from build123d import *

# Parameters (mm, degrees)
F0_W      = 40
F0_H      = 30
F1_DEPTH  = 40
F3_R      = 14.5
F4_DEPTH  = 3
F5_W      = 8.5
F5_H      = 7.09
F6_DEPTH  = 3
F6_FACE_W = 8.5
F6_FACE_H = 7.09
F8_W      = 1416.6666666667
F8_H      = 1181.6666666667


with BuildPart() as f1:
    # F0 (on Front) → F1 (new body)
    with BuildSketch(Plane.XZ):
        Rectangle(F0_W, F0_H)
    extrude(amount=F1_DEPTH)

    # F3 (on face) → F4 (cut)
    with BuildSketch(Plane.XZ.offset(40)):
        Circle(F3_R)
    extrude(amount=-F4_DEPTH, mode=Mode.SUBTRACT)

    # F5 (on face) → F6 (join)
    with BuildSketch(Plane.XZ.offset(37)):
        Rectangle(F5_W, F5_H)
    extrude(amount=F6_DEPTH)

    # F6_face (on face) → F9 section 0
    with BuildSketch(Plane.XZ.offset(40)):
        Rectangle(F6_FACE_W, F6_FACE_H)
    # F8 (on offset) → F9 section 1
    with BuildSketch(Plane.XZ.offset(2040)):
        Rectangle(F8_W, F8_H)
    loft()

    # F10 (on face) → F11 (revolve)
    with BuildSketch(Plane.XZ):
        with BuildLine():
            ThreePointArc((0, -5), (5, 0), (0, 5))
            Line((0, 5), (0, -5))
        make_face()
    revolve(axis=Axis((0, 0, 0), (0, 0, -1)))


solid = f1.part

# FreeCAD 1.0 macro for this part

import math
import FreeCAD as App
import Part
import Sketcher
from FreeCAD import Vector

doc = App.newDocument("Part")
params = doc.addObject("Spreadsheet::Sheet", "Params")
for row, (alias, value) in enumerate([
    ("sketch1_width", "40 mm"),
    ("sketch1_height", "30 mm"),
    ("pad1_length", "40 mm"),
    ("sketch2_diameter", "29 mm"),
    ("pocket1_length", "3 mm"),
    ("sketch3_width", "8.5 mm"),
    ("sketch3_height", "7.09 mm"),
    ("pad2_length", "3 mm"),
    ("sketch4_width", "8.5 mm"),
    ("sketch4_height", "7.09 mm"),
    ("sketch6_radius", "5 mm"),
    ("revolution_angle", "360 deg"),
], start=1):
    params.set(f"A{row}", alias)
    params.set(f"B{row}", "=" + value)
    params.setAlias(f"B{row}", alias)

body = doc.addObject("PartDesign::Body", "Body")

# Sketch on XZ plane
sketch1 = body.newObject("Sketcher::SketchObject", "Sketch")
sketch1.AttachmentSupport = (doc.getObject("XZ_Plane"), [""])
sketch1.MapMode = "FlatFace"
sketch1.addGeometry(Part.LineSegment(Vector(-20, 15, 0), Vector(-20, -15, 0)), False)
sketch1.addGeometry(Part.LineSegment(Vector(-20, -15, 0), Vector(20, -15, 0)), False)
sketch1.addGeometry(Part.LineSegment(Vector(20, -15, 0), Vector(20, 15, 0)), False)
sketch1.addGeometry(Part.LineSegment(Vector(20, 15, 0), Vector(-20, 15, 0)), False)
sketch1.addConstraint(Sketcher.Constraint("Coincident", 0, 2, 1, 1))
sketch1.addConstraint(Sketcher.Constraint("Coincident", 1, 2, 2, 1))
sketch1.addConstraint(Sketcher.Constraint("Coincident", 2, 2, 3, 1))
sketch1.addConstraint(Sketcher.Constraint("Coincident", 3, 2, 0, 1))
sketch1.addConstraint(Sketcher.Constraint("Vertical", 0))
sketch1.addConstraint(Sketcher.Constraint("Horizontal", 1))
sketch1.addConstraint(Sketcher.Constraint("Vertical", 2))
sketch1.addConstraint(Sketcher.Constraint("Horizontal", 3))
sketch1.addConstraint(Sketcher.Constraint("Symmetric", 0, 2, 2, 2, -1, 1))
sketch1.addConstraint(Sketcher.Constraint("DistanceX", 1, 1, 1, 2, 40.0))
sketch1.addConstraint(Sketcher.Constraint("DistanceY", 0, 2, 0, 1, 30.0))
sketch1.setExpression("Constraints[9]", "Params.sketch1_width")
sketch1.setExpression("Constraints[10]", "Params.sketch1_height")
pad1 = body.newObject("PartDesign::Pad", "Pad")
pad1.Profile = sketch1
pad1.setExpression("Length", "Params.pad1_length")

# Sketch on XZ plane
sketch2 = body.newObject("Sketcher::SketchObject", "Sketch001")
sketch2.AttachmentSupport = (doc.getObject("XZ_Plane"), [""])
sketch2.MapMode = "FlatFace"
sketch2.AttachmentOffset = App.Placement(Vector(0, 0, 40), App.Rotation())
sketch2.addGeometry(Part.Circle(Vector(0, 0, 0), Vector(0, 0, 1), 14), False)
sketch2.addConstraint(Sketcher.Constraint("Coincident", 0, 3, -1, 1))
sketch2.addConstraint(Sketcher.Constraint("Diameter", 0, 29.0))
sketch2.setExpression("Constraints[1]", "Params.sketch2_diameter")
pocket1 = body.newObject("PartDesign::Pocket", "Pocket")
pocket1.Profile = sketch2
pocket1.setExpression("Length", "Params.pocket1_length")

# Sketch on XZ plane
sketch3 = body.newObject("Sketcher::SketchObject", "Sketch002")
sketch3.AttachmentSupport = (doc.getObject("XZ_Plane"), [""])
sketch3.MapMode = "FlatFace"
sketch3.AttachmentOffset = App.Placement(Vector(0, 0, 37), App.Rotation())
sketch3.addGeometry(Part.LineSegment(Vector(-4, 4, 0), Vector(-4, -4, 0)), False)
sketch3.addGeometry(Part.LineSegment(Vector(-4, -4, 0), Vector(4, -4, 0)), False)
sketch3.addGeometry(Part.LineSegment(Vector(4, -4, 0), Vector(4, 4, 0)), False)
sketch3.addGeometry(Part.LineSegment(Vector(4, 4, 0), Vector(-4, 4, 0)), False)
sketch3.addConstraint(Sketcher.Constraint("Coincident", 0, 2, 1, 1))
sketch3.addConstraint(Sketcher.Constraint("Coincident", 1, 2, 2, 1))
sketch3.addConstraint(Sketcher.Constraint("Coincident", 2, 2, 3, 1))
sketch3.addConstraint(Sketcher.Constraint("Coincident", 3, 2, 0, 1))
sketch3.addConstraint(Sketcher.Constraint("Vertical", 0))
sketch3.addConstraint(Sketcher.Constraint("Horizontal", 1))
sketch3.addConstraint(Sketcher.Constraint("Vertical", 2))
sketch3.addConstraint(Sketcher.Constraint("Horizontal", 3))
sketch3.addConstraint(Sketcher.Constraint("Symmetric", 0, 2, 2, 2, -1, 1))
sketch3.addConstraint(Sketcher.Constraint("DistanceX", 1, 1, 1, 2, 8.5))
sketch3.addConstraint(Sketcher.Constraint("DistanceY", 0, 2, 0, 1, 7.09))
sketch3.setExpression("Constraints[9]", "Params.sketch3_width")
sketch3.setExpression("Constraints[10]", "Params.sketch3_height")
pad2 = body.newObject("PartDesign::Pad", "Pad001")
pad2.Profile = sketch3
pad2.setExpression("Length", "Params.pad2_length")

# Sketch on XZ plane
sketch4 = body.newObject("Sketcher::SketchObject", "Sketch003")
sketch4.AttachmentSupport = (doc.getObject("XZ_Plane"), [""])
sketch4.MapMode = "FlatFace"
sketch4.AttachmentOffset = App.Placement(Vector(0, 0, 40), App.Rotation())
sketch4.addGeometry(Part.LineSegment(Vector(-4, 4, 0), Vector(-4, -4, 0)), False)
sketch4.addGeometry(Part.LineSegment(Vector(-4, -4, 0), Vector(4, -4, 0)), False)
sketch4.addGeometry(Part.LineSegment(Vector(4, -4, 0), Vector(4, 4, 0)), False)
sketch4.addGeometry(Part.LineSegment(Vector(4, 4, 0), Vector(-4, 4, 0)), False)
sketch4.addConstraint(Sketcher.Constraint("Coincident", 0, 2, 1, 1))
sketch4.addConstraint(Sketcher.Constraint("Coincident", 1, 2, 2, 1))
sketch4.addConstraint(Sketcher.Constraint("Coincident", 2, 2, 3, 1))
sketch4.addConstraint(Sketcher.Constraint("Coincident", 3, 2, 0, 1))
sketch4.addConstraint(Sketcher.Constraint("Vertical", 0))
sketch4.addConstraint(Sketcher.Constraint("Horizontal", 1))
sketch4.addConstraint(Sketcher.Constraint("Vertical", 2))
sketch4.addConstraint(Sketcher.Constraint("Horizontal", 3))
sketch4.addConstraint(Sketcher.Constraint("Symmetric", 0, 2, 2, 2, -1, 1))
sketch4.addConstraint(Sketcher.Constraint("DistanceX", 1, 1, 1, 2, 8.5))
sketch4.addConstraint(Sketcher.Constraint("DistanceY", 0, 2, 0, 1, 7.09))
sketch4.setExpression("Constraints[9]", "Params.sketch4_width")
sketch4.setExpression("Constraints[10]", "Params.sketch4_height")

# Sketch on XZ plane
sketch5 = body.newObject("Sketcher::SketchObject", "Sketch004")
sketch5.AttachmentSupport = (doc.getObject("XZ_Plane"), [""])
sketch5.MapMode = "FlatFace"
sketch5.AttachmentOffset = App.Placement(Vector(0, 0, 2040), App.Rotation())
sketch5.addGeometry(Part.LineSegment(Vector(-708, 591, 0), Vector(-708, -591, 0)), False)
sketch5.addGeometry(Part.LineSegment(Vector(-708, -591, 0), Vector(708, -591, 0)), False)
sketch5.addGeometry(Part.LineSegment(Vector(708, -591, 0), Vector(708, 591, 0)), False)
sketch5.addGeometry(Part.LineSegment(Vector(708, 591, 0), Vector(-708, 591, 0)), False)
sketch5.addConstraint(Sketcher.Constraint("Coincident", 0, 2, 1, 1))
sketch5.addConstraint(Sketcher.Constraint("Coincident", 1, 2, 2, 1))
sketch5.addConstraint(Sketcher.Constraint("Coincident", 2, 2, 3, 1))
sketch5.addConstraint(Sketcher.Constraint("Coincident", 3, 2, 0, 1))
sketch5.addConstraint(Sketcher.Constraint("Vertical", 0))
sketch5.addConstraint(Sketcher.Constraint("Horizontal", 1))
sketch5.addConstraint(Sketcher.Constraint("Vertical", 2))
sketch5.addConstraint(Sketcher.Constraint("Horizontal", 3))
sketch5.addConstraint(Sketcher.Constraint("Symmetric", 0, 2, 2, 2, -1, 1))
sketch5.addConstraint(Sketcher.Constraint("DistanceX", 1, 1, 1, 2, 1416.666667))
sketch5.addConstraint(Sketcher.Constraint("DistanceY", 0, 2, 0, 1, 1181.666667))

additiveloft = body.newObject("PartDesign::AdditiveLoft", "AdditiveLoft")
additiveloft.Profile = sketch4
additiveloft.Sections = [sketch5]

# Sketch on XZ plane
sketch6 = body.newObject("Sketcher::SketchObject", "Sketch005")
sketch6.AttachmentSupport = (doc.getObject("XZ_Plane"), [""])
sketch6.MapMode = "FlatFace"
sketch6.addGeometry(Part.ArcOfCircle(Part.Circle(Vector(0, 0, 0), Vector(0, 0, 1), 5), math.radians(-90), math.radians(90)), False)
sketch6.addGeometry(Part.LineSegment(Vector(0, 5, 0), Vector(0, -5, 0)), False)
sketch6.addConstraint(Sketcher.Constraint("Coincident", 0, 1, 1, 2))
sketch6.addConstraint(Sketcher.Constraint("Coincident", 1, 1, 0, 2))
sketch6.addConstraint(Sketcher.Constraint("Vertical", 1))
sketch6.addConstraint(Sketcher.Constraint("Coincident", 0, 3, -1, 1))
sketch6.addConstraint(Sketcher.Constraint("PointOnObject", 0, 1, -2))
sketch6.addConstraint(Sketcher.Constraint("Radius", 0, 5.0))
sketch6.setExpression("Constraints[5]", "Params.sketch6_radius")
revolution = body.newObject("PartDesign::Revolution", "Revolution")
revolution.Profile = sketch6
revolution.ReferenceAxis = (sketch6, ["V_Axis"])
revolution.setExpression("Angle", "Params.revolution_angle")

doc.recompute()
